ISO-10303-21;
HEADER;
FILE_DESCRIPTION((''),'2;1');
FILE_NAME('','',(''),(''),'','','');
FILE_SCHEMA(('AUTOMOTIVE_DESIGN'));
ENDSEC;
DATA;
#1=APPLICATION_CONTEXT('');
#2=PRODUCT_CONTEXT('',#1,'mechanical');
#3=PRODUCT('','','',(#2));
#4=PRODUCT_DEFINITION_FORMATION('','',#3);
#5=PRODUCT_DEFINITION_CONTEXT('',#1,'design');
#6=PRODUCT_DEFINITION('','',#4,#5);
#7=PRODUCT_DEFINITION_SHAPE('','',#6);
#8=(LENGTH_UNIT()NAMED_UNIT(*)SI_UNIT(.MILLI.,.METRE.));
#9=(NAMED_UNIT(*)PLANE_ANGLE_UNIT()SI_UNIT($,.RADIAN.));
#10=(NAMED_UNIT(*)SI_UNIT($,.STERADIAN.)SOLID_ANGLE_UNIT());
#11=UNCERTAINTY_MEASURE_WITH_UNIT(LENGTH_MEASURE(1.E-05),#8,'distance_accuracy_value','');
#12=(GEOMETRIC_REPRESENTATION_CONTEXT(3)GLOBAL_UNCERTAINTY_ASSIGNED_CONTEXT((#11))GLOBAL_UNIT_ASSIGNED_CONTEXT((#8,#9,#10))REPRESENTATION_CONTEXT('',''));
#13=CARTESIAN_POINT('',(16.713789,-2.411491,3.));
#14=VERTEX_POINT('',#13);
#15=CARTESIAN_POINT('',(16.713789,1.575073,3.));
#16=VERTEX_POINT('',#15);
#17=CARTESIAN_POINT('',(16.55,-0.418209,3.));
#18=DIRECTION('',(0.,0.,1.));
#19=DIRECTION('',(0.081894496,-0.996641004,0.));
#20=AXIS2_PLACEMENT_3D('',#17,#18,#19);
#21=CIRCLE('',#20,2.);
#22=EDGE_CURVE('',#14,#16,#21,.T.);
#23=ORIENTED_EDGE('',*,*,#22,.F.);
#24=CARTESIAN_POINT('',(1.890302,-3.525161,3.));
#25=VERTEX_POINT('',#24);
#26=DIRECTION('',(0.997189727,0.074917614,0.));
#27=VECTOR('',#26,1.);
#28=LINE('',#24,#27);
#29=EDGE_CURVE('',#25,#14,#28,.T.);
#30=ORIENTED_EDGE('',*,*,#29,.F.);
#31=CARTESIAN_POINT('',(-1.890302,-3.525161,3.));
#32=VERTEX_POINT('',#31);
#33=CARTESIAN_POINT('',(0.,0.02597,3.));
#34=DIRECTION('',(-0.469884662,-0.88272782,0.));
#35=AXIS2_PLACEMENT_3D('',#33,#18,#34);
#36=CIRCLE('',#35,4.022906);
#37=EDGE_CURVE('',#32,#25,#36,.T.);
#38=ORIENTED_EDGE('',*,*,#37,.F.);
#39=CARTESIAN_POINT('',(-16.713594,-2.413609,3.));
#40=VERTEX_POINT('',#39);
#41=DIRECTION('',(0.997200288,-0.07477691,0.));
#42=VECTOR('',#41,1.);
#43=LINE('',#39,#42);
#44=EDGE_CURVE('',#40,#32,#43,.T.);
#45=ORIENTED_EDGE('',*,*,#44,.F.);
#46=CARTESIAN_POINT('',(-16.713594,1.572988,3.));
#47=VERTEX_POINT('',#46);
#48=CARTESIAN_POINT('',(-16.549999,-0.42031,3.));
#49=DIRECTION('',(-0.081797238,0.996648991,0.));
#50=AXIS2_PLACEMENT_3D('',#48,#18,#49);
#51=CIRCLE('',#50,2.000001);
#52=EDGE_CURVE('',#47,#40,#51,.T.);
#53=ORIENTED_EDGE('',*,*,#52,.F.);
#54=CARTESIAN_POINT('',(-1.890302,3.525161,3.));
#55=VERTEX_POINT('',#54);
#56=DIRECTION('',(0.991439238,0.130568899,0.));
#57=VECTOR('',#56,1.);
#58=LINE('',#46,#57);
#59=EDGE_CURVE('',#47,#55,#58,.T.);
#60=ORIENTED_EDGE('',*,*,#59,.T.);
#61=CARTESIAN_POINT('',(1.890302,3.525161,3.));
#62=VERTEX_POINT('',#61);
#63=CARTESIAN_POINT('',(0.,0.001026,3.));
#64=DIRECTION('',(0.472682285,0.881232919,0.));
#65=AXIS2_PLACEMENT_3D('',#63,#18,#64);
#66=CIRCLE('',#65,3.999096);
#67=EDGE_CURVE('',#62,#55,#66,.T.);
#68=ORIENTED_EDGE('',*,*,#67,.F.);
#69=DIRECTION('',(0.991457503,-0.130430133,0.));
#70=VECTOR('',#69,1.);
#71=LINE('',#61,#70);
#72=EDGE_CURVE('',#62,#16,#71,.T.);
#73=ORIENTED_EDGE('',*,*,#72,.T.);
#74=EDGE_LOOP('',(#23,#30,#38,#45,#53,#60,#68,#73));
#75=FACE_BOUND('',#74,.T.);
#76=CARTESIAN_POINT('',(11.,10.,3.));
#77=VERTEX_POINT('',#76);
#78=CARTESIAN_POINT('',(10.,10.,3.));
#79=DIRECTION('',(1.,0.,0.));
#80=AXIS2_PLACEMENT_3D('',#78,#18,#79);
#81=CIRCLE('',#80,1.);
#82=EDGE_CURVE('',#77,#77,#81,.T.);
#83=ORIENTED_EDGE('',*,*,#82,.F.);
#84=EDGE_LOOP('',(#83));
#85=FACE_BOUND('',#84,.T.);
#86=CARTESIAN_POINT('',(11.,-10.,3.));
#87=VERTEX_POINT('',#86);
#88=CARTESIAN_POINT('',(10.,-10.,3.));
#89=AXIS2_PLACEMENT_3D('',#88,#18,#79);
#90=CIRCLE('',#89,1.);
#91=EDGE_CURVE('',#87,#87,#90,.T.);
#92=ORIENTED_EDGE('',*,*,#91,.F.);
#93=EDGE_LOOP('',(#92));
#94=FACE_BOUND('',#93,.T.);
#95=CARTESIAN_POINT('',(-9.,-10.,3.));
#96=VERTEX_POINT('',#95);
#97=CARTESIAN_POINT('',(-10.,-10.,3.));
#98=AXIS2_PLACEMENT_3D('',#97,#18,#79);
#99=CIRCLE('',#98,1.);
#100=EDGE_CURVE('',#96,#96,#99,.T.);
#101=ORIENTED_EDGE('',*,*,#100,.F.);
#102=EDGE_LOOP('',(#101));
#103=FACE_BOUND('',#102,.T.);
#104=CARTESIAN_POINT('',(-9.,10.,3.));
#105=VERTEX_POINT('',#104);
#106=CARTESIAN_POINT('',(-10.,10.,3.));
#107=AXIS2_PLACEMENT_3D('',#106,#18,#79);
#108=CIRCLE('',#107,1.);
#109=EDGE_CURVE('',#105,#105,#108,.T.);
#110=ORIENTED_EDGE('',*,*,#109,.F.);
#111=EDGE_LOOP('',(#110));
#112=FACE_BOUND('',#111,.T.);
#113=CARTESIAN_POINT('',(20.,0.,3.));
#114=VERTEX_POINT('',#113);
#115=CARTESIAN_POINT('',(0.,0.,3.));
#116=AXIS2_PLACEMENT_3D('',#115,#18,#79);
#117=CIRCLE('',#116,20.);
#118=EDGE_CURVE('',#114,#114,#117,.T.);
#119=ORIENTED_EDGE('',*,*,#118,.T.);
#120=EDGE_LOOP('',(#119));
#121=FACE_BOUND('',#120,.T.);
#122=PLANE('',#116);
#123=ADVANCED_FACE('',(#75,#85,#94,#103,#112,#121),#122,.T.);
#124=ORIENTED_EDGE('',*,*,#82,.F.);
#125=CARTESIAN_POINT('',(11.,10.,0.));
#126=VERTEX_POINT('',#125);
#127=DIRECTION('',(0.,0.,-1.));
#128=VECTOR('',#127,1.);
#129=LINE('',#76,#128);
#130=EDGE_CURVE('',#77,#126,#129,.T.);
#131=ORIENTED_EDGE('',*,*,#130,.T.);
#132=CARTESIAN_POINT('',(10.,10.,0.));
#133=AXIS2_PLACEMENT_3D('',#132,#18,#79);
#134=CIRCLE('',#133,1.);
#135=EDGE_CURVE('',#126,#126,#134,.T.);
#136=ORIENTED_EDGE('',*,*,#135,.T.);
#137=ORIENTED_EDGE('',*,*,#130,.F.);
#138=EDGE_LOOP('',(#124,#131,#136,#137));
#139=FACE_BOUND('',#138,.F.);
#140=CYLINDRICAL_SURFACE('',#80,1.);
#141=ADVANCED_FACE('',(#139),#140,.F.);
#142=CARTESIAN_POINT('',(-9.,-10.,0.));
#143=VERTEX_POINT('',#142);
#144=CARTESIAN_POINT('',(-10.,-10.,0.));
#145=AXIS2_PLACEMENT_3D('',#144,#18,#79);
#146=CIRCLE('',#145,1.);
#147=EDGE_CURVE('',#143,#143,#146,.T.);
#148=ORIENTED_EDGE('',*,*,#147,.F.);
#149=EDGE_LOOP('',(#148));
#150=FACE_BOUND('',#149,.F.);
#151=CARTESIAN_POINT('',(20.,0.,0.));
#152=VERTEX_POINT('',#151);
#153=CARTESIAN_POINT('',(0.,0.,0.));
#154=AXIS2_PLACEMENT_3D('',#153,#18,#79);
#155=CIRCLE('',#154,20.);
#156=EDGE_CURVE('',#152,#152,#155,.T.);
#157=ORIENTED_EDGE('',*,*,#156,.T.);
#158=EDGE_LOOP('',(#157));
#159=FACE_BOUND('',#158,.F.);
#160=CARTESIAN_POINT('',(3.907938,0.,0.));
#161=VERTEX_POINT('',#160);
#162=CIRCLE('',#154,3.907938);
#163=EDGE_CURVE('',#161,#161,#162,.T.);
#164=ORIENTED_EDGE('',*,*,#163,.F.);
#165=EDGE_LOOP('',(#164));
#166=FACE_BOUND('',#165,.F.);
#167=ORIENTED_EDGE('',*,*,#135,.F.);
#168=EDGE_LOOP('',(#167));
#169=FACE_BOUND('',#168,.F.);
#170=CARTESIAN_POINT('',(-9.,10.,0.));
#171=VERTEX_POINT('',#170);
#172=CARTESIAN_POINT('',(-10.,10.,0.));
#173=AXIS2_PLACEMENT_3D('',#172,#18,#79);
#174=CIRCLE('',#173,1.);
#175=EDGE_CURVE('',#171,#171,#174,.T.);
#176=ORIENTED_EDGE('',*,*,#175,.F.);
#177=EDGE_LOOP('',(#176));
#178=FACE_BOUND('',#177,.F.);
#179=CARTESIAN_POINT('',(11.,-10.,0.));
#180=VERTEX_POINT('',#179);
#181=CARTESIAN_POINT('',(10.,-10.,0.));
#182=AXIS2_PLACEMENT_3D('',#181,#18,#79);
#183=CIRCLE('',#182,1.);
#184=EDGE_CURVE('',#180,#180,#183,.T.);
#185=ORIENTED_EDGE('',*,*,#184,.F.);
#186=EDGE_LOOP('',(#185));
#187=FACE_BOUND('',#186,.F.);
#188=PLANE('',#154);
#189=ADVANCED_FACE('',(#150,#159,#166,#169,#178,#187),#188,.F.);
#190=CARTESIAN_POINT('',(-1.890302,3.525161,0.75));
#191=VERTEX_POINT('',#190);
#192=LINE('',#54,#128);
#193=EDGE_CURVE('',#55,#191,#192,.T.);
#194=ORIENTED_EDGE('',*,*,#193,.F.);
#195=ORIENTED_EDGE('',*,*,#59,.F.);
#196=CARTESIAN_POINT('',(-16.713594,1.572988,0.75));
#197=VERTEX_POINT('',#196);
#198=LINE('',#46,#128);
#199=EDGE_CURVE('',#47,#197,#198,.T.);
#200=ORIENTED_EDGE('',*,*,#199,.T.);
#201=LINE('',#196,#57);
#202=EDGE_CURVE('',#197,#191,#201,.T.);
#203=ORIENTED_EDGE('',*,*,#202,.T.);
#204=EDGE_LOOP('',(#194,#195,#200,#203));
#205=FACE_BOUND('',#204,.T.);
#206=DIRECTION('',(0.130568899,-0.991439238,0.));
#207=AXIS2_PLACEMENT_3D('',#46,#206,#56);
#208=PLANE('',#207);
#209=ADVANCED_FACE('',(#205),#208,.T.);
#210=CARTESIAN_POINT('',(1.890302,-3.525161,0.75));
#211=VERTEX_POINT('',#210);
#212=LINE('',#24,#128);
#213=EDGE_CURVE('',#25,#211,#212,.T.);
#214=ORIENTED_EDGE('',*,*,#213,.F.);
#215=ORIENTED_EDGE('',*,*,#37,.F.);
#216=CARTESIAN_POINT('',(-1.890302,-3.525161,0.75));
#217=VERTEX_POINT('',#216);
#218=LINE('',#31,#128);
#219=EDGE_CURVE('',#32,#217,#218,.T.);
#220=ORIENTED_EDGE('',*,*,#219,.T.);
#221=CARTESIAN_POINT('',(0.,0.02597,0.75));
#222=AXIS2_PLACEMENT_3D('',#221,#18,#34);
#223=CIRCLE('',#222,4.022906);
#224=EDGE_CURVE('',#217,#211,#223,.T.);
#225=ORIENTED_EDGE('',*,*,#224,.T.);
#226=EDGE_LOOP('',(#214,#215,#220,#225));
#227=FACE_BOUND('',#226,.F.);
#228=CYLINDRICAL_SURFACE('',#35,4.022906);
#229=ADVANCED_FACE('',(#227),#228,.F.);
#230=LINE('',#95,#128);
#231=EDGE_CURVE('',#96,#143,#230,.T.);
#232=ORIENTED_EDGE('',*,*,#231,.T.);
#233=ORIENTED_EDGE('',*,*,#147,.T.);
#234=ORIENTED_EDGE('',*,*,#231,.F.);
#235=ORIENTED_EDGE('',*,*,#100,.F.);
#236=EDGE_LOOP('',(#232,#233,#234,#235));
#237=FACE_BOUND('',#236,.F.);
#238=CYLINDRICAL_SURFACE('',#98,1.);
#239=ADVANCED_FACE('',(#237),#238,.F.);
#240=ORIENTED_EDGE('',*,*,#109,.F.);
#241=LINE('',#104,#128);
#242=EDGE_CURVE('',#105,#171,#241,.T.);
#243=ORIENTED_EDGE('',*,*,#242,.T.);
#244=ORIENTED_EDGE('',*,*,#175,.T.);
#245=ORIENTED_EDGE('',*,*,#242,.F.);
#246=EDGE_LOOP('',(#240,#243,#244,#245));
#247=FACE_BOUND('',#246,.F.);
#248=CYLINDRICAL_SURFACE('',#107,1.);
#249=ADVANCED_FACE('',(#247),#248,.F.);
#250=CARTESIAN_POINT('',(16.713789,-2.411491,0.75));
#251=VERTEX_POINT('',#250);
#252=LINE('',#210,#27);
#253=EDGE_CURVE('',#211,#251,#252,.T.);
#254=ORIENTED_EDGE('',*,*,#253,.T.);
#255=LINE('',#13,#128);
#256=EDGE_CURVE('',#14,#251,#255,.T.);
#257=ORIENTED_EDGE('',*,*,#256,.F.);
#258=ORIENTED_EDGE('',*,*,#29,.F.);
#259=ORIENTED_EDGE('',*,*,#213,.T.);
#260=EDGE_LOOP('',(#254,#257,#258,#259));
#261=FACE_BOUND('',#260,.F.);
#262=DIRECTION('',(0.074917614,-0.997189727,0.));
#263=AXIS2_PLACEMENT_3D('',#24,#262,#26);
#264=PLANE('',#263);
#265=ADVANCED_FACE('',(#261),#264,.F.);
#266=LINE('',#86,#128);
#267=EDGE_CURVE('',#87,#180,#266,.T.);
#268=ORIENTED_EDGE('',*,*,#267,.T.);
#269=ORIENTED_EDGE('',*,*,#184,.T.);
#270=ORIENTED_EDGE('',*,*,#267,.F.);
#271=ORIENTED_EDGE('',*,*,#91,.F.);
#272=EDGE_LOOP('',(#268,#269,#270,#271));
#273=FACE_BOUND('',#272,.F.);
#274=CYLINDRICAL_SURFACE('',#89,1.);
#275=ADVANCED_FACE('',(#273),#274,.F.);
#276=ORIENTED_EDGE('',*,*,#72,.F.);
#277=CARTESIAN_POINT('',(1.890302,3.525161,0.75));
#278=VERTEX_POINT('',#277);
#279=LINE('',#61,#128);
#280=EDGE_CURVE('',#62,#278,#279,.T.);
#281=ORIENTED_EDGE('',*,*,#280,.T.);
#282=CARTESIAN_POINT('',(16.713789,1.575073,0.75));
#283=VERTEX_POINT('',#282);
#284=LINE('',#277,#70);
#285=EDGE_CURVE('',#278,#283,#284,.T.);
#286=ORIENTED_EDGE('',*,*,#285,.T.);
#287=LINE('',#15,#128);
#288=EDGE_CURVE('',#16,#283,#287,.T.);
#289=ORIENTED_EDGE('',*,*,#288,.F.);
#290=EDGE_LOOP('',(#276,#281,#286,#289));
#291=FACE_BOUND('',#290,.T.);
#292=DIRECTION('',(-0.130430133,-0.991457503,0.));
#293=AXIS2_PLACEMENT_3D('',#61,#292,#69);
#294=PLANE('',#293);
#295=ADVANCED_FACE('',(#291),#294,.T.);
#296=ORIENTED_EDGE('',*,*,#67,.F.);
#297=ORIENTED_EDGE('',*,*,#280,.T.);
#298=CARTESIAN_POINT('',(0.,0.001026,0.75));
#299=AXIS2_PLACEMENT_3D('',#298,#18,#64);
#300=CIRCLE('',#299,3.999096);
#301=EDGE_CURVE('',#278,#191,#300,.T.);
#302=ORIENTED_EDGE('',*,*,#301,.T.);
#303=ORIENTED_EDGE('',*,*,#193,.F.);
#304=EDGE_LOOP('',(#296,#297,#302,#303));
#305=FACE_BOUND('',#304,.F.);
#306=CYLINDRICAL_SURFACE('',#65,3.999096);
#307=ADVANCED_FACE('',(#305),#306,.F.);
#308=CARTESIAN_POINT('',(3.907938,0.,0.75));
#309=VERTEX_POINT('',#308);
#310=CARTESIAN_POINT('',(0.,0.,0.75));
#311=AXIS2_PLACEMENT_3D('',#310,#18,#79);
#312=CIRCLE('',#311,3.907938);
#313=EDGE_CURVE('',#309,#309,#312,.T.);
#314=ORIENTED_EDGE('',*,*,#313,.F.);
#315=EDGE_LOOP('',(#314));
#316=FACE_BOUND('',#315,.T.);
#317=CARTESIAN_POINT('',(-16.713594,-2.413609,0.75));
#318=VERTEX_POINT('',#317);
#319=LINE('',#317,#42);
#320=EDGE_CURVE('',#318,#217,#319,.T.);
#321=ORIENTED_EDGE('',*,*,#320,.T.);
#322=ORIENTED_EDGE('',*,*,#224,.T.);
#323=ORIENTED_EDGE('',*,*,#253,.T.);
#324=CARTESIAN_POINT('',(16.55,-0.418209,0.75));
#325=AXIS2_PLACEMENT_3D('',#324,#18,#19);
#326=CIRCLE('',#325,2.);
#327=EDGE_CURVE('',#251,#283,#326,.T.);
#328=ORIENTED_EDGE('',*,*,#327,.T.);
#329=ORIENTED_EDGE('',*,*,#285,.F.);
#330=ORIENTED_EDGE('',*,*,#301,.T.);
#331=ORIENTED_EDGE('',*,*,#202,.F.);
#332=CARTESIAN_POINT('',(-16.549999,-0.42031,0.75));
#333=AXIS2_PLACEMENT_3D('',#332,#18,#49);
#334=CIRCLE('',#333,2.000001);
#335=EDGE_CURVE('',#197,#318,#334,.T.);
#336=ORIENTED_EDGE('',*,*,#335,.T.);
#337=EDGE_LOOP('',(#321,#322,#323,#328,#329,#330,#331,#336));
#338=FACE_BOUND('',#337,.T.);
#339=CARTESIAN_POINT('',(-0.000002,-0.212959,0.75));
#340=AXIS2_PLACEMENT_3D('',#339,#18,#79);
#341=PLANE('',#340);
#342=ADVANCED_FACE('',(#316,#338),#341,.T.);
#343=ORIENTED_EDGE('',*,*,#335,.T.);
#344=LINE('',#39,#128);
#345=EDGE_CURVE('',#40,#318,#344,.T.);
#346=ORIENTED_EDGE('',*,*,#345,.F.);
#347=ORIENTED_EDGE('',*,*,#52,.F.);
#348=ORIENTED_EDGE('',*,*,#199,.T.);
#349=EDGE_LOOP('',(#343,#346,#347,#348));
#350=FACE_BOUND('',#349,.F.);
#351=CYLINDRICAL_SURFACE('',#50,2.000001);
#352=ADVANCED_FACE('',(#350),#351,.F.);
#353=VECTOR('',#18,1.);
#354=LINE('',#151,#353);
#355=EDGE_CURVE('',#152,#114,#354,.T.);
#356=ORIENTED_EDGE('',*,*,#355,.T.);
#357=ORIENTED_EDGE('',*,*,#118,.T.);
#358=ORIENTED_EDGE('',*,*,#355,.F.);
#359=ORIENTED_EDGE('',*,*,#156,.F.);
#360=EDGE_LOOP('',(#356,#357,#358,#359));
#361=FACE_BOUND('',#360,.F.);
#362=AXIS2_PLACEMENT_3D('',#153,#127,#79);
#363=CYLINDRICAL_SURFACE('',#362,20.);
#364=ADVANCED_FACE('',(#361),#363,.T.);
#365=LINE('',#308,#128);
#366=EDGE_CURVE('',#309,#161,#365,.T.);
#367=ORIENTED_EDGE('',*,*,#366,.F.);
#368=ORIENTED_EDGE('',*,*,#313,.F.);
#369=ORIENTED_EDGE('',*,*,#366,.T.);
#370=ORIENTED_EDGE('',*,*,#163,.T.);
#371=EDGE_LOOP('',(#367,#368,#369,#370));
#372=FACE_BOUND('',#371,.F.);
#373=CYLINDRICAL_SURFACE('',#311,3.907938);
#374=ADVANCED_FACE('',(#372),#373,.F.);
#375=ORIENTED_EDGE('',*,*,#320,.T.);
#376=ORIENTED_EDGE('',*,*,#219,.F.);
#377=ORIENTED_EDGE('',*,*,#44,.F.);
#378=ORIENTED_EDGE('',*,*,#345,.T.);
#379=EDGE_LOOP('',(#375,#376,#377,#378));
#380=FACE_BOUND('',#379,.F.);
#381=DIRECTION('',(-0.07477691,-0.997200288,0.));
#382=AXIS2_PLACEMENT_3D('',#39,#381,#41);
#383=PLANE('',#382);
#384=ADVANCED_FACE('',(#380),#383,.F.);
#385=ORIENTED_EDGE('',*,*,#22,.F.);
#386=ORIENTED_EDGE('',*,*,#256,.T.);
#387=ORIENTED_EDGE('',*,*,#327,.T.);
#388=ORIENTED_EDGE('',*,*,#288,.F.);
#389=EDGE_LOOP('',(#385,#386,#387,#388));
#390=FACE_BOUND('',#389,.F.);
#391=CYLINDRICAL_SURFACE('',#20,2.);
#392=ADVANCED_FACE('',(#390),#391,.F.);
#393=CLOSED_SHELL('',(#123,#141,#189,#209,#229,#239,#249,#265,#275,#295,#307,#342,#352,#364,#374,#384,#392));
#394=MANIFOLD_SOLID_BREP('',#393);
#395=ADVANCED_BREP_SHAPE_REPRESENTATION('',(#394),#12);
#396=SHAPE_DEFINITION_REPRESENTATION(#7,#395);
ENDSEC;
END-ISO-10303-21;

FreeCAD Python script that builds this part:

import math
import FreeCAD as App
import Part
import Sketcher

V = App.Vector

doc = App.newDocument("Part")
params = doc.addObject("Spreadsheet::Sheet", "Params")
for row, (alias, value) in enumerate([
    ("sketch1_diameter", "40 mm"),
    ("pad1_length", "3 mm"),
    ("sketch2_radius", "2.000001 mm"),
    ("pocket1_length", "2.25 mm"),
    ("pocket2_length", "2 mm"),
    ("sketch4_diameter", "2 mm"),
    ("pocket3_length", "5 mm"),
], start=1):
    params.set(f"A{row}", alias)
    params.set(f"B{row}", "=" + value)
    params.setAlias(f"B{row}", alias)

body = doc.addObject("PartDesign::Body", "Body")

# Sketch on XY plane
sketch1 = doc.addObject("Sketcher::SketchObject", "Sketch")
body.addObject(sketch1)
sketch1.AttachmentSupport = (doc.XY_Plane, [""])
sketch1.MapMode = "FlatFace"
sketch1.addGeometry(Part.Circle(V(0, 0, 0), V(0, 0, 1), 20), False)
sketch1.addConstraint([
    Sketcher.Constraint("Coincident", 0, 3, -1, 1),
    Sketcher.Constraint("Diameter", 0, 40.0),
])
sketch1.setExpression("Constraints[1]", "Params.sketch1_diameter")
pad1 = doc.addObject("PartDesign::Pad", "Pad")
body.addObject(pad1)
pad1.Profile = sketch1
pad1.setExpression("Length", "Params.pad1_length")

# Sketch on XY plane
sketch2 = doc.addObject("Sketcher::SketchObject", "Sketch001")
body.addObject(sketch2)
sketch2.AttachmentSupport = (doc.XY_Plane, [""])
sketch2.MapMode = "FlatFace"
sketch2.AttachmentOffset = App.Placement(V(0, 0, 3), App.Rotation())
sketch2.addGeometry([
    Part.ArcOfCircle(Part.Circle(V(0, 0, 0), V(0, 0, 1), 4), math.radians(62), math.radians(118)),  # 0
    Part.LineSegment(V(-1.9, 3.5, 0), V(-16.7, 1.6, 0)),  # 1
    Part.ArcOfCircle(Part.Circle(V(-16.5, -0.4, 0), V(0, 0, 1), 2), math.radians(95), math.radians(265)),  # 2
    Part.LineSegment(V(-16.7, -2.4, 0), V(-1.9, -3.5, 0)),  # 3
    Part.ArcOfCircle(Part.Circle(V(0, 0, 0), V(0, 0, 1), 4), math.radians(-118), math.radians(-62)),  # 4
    Part.LineSegment(V(1.9, -3.5, 0), V(16.7, -2.4, 0)),  # 5
    Part.ArcOfCircle(Part.Circle(V(16.6, -0.4, 0), V(0, 0, 1), 2), math.radians(-85), math.radians(85)),  # 6
    Part.LineSegment(V(16.7, 1.6, 0), V(1.9, 3.5, 0)),  # 7
], False)
sketch2.addConstraint([
    Sketcher.Constraint("Coincident", 0, 2, 1, 1),
    Sketcher.Constraint("Coincident", 1, 2, 2, 1),
    Sketcher.Constraint("Coincident", 2, 2, 3, 1),
    Sketcher.Constraint("Coincident", 3, 2, 4, 1),
    Sketcher.Constraint("Coincident", 4, 2, 5, 1),
    Sketcher.Constraint("Coincident", 5, 2, 6, 1),
    Sketcher.Constraint("Coincident", 6, 2, 7, 1),
    Sketcher.Constraint("Coincident", 7, 2, 0, 1),
    Sketcher.Constraint("Equal", 2, 6),
    Sketcher.Constraint("Symmetric", 0, 2, 4, 2, -1, 1),
    Sketcher.Constraint("Symmetric", 3, 2, 7, 2, -1, 1),
    Sketcher.Constraint("Symmetric", 3, 2, 4, 2, -2),
    Sketcher.Constraint("Vertical", 1, 2, 2, 2),
    Sketcher.Constraint("Vertical", 5, 2, 6, 2),
    Sketcher.Constraint("Radius", 2, 2.000001),
    Sketcher.Constraint("DistanceX", 2, 3, 6, 3, 33.099999),
    Sketcher.Constraint("DistanceX", 2, 3, -1, 1, 16.549999),
    Sketcher.Constraint("Radius", 0, 3.999096),
    Sketcher.Constraint("Radius", 4, 4.022906),
    Sketcher.Constraint("DistanceX", 3, 2, -1, 1, 1.890302),
    Sketcher.Constraint("DistanceY", 2, 3, 6, 3, 0.002101),
    Sketcher.Constraint("DistanceY", 2, 3, 1, 2, 1.993299),
    Sketcher.Constraint("Distance", 3, 14.864909),
    Sketcher.Constraint("DistanceY", 2, 3, -1, 1, 0.42031),
    Sketcher.Constraint("DistanceX", -1, 1, 5, 2, 16.713789),
])
sketch2.setExpression("Constraints[14]", "Params.sketch2_radius")
pocket1 = doc.addObject("PartDesign::Pocket", "Pocket")
body.addObject(pocket1)
pocket1.Profile = sketch2
pocket1.setExpression("Length", "Params.pocket1_length")

# Sketch on XY plane
sketch3 = doc.addObject("Sketcher::SketchObject", "Sketch002")
body.addObject(sketch3)
sketch3.AttachmentSupport = (doc.XY_Plane, [""])
sketch3.MapMode = "FlatFace"
sketch3.AttachmentOffset = App.Placement(V(0, 0, 0.75), App.Rotation())
sketch3.addGeometry(Part.Circle(V(0, 0, 0), V(0, 0, 1), 3.9), False)
sketch3.addConstraint([
    Sketcher.Constraint("Coincident", 0, 3, -1, 1),
    Sketcher.Constraint("Diameter", 0, 7.815876),
])
pocket2 = doc.addObject("PartDesign::Pocket", "Pocket001")
body.addObject(pocket2)
pocket2.Profile = sketch3
pocket2.setExpression("Length", "Params.pocket2_length")

# Sketch on XY plane
sketch4 = doc.addObject("Sketcher::SketchObject", "Sketch003")
body.addObject(sketch4)
sketch4.AttachmentSupport = (doc.XY_Plane, [""])
sketch4.MapMode = "FlatFace"
sketch4.AttachmentOffset = App.Placement(V(0, 0, 3), App.Rotation())
sketch4.addGeometry([
    Part.Circle(V(-10, 10, 0), V(0, 0, 1), 1),
    Part.Circle(V(10, 10, 0), V(0, 0, 1), 1),
    Part.Circle(V(10, -10, 0), V(0, 0, 1), 1),
    Part.Circle(V(-10, -10, 0), V(0, 0, 1), 1),
], False)
sketch4.addConstraint([
    Sketcher.Constraint("Equal", 0, 1),
    Sketcher.Constraint("Equal", 1, 2),
    Sketcher.Constraint("Equal", 2, 3),
    Sketcher.Constraint("Symmetric", 0, 3, 2, 3, -1, 1),
    Sketcher.Constraint("Symmetric", 1, 3, 3, 3, -1, 1),
    Sketcher.Constraint("Symmetric", 0, 3, 1, 3, -2),
    Sketcher.Constraint("Diameter", 0, 2.0),
    Sketcher.Constraint("DistanceX", 0, 3, -1, 1, 10.0),
    Sketcher.Constraint("DistanceY", -1, 1, 0, 3, 10.0),
])
sketch4.setExpression("Constraints[6]", "Params.sketch4_diameter")
pocket3 = doc.addObject("PartDesign::Pocket", "Pocket002")
body.addObject(pocket3)
pocket3.Profile = sketch4
pocket3.setExpression("Length", "Params.pocket3_length")

doc.recompute()
